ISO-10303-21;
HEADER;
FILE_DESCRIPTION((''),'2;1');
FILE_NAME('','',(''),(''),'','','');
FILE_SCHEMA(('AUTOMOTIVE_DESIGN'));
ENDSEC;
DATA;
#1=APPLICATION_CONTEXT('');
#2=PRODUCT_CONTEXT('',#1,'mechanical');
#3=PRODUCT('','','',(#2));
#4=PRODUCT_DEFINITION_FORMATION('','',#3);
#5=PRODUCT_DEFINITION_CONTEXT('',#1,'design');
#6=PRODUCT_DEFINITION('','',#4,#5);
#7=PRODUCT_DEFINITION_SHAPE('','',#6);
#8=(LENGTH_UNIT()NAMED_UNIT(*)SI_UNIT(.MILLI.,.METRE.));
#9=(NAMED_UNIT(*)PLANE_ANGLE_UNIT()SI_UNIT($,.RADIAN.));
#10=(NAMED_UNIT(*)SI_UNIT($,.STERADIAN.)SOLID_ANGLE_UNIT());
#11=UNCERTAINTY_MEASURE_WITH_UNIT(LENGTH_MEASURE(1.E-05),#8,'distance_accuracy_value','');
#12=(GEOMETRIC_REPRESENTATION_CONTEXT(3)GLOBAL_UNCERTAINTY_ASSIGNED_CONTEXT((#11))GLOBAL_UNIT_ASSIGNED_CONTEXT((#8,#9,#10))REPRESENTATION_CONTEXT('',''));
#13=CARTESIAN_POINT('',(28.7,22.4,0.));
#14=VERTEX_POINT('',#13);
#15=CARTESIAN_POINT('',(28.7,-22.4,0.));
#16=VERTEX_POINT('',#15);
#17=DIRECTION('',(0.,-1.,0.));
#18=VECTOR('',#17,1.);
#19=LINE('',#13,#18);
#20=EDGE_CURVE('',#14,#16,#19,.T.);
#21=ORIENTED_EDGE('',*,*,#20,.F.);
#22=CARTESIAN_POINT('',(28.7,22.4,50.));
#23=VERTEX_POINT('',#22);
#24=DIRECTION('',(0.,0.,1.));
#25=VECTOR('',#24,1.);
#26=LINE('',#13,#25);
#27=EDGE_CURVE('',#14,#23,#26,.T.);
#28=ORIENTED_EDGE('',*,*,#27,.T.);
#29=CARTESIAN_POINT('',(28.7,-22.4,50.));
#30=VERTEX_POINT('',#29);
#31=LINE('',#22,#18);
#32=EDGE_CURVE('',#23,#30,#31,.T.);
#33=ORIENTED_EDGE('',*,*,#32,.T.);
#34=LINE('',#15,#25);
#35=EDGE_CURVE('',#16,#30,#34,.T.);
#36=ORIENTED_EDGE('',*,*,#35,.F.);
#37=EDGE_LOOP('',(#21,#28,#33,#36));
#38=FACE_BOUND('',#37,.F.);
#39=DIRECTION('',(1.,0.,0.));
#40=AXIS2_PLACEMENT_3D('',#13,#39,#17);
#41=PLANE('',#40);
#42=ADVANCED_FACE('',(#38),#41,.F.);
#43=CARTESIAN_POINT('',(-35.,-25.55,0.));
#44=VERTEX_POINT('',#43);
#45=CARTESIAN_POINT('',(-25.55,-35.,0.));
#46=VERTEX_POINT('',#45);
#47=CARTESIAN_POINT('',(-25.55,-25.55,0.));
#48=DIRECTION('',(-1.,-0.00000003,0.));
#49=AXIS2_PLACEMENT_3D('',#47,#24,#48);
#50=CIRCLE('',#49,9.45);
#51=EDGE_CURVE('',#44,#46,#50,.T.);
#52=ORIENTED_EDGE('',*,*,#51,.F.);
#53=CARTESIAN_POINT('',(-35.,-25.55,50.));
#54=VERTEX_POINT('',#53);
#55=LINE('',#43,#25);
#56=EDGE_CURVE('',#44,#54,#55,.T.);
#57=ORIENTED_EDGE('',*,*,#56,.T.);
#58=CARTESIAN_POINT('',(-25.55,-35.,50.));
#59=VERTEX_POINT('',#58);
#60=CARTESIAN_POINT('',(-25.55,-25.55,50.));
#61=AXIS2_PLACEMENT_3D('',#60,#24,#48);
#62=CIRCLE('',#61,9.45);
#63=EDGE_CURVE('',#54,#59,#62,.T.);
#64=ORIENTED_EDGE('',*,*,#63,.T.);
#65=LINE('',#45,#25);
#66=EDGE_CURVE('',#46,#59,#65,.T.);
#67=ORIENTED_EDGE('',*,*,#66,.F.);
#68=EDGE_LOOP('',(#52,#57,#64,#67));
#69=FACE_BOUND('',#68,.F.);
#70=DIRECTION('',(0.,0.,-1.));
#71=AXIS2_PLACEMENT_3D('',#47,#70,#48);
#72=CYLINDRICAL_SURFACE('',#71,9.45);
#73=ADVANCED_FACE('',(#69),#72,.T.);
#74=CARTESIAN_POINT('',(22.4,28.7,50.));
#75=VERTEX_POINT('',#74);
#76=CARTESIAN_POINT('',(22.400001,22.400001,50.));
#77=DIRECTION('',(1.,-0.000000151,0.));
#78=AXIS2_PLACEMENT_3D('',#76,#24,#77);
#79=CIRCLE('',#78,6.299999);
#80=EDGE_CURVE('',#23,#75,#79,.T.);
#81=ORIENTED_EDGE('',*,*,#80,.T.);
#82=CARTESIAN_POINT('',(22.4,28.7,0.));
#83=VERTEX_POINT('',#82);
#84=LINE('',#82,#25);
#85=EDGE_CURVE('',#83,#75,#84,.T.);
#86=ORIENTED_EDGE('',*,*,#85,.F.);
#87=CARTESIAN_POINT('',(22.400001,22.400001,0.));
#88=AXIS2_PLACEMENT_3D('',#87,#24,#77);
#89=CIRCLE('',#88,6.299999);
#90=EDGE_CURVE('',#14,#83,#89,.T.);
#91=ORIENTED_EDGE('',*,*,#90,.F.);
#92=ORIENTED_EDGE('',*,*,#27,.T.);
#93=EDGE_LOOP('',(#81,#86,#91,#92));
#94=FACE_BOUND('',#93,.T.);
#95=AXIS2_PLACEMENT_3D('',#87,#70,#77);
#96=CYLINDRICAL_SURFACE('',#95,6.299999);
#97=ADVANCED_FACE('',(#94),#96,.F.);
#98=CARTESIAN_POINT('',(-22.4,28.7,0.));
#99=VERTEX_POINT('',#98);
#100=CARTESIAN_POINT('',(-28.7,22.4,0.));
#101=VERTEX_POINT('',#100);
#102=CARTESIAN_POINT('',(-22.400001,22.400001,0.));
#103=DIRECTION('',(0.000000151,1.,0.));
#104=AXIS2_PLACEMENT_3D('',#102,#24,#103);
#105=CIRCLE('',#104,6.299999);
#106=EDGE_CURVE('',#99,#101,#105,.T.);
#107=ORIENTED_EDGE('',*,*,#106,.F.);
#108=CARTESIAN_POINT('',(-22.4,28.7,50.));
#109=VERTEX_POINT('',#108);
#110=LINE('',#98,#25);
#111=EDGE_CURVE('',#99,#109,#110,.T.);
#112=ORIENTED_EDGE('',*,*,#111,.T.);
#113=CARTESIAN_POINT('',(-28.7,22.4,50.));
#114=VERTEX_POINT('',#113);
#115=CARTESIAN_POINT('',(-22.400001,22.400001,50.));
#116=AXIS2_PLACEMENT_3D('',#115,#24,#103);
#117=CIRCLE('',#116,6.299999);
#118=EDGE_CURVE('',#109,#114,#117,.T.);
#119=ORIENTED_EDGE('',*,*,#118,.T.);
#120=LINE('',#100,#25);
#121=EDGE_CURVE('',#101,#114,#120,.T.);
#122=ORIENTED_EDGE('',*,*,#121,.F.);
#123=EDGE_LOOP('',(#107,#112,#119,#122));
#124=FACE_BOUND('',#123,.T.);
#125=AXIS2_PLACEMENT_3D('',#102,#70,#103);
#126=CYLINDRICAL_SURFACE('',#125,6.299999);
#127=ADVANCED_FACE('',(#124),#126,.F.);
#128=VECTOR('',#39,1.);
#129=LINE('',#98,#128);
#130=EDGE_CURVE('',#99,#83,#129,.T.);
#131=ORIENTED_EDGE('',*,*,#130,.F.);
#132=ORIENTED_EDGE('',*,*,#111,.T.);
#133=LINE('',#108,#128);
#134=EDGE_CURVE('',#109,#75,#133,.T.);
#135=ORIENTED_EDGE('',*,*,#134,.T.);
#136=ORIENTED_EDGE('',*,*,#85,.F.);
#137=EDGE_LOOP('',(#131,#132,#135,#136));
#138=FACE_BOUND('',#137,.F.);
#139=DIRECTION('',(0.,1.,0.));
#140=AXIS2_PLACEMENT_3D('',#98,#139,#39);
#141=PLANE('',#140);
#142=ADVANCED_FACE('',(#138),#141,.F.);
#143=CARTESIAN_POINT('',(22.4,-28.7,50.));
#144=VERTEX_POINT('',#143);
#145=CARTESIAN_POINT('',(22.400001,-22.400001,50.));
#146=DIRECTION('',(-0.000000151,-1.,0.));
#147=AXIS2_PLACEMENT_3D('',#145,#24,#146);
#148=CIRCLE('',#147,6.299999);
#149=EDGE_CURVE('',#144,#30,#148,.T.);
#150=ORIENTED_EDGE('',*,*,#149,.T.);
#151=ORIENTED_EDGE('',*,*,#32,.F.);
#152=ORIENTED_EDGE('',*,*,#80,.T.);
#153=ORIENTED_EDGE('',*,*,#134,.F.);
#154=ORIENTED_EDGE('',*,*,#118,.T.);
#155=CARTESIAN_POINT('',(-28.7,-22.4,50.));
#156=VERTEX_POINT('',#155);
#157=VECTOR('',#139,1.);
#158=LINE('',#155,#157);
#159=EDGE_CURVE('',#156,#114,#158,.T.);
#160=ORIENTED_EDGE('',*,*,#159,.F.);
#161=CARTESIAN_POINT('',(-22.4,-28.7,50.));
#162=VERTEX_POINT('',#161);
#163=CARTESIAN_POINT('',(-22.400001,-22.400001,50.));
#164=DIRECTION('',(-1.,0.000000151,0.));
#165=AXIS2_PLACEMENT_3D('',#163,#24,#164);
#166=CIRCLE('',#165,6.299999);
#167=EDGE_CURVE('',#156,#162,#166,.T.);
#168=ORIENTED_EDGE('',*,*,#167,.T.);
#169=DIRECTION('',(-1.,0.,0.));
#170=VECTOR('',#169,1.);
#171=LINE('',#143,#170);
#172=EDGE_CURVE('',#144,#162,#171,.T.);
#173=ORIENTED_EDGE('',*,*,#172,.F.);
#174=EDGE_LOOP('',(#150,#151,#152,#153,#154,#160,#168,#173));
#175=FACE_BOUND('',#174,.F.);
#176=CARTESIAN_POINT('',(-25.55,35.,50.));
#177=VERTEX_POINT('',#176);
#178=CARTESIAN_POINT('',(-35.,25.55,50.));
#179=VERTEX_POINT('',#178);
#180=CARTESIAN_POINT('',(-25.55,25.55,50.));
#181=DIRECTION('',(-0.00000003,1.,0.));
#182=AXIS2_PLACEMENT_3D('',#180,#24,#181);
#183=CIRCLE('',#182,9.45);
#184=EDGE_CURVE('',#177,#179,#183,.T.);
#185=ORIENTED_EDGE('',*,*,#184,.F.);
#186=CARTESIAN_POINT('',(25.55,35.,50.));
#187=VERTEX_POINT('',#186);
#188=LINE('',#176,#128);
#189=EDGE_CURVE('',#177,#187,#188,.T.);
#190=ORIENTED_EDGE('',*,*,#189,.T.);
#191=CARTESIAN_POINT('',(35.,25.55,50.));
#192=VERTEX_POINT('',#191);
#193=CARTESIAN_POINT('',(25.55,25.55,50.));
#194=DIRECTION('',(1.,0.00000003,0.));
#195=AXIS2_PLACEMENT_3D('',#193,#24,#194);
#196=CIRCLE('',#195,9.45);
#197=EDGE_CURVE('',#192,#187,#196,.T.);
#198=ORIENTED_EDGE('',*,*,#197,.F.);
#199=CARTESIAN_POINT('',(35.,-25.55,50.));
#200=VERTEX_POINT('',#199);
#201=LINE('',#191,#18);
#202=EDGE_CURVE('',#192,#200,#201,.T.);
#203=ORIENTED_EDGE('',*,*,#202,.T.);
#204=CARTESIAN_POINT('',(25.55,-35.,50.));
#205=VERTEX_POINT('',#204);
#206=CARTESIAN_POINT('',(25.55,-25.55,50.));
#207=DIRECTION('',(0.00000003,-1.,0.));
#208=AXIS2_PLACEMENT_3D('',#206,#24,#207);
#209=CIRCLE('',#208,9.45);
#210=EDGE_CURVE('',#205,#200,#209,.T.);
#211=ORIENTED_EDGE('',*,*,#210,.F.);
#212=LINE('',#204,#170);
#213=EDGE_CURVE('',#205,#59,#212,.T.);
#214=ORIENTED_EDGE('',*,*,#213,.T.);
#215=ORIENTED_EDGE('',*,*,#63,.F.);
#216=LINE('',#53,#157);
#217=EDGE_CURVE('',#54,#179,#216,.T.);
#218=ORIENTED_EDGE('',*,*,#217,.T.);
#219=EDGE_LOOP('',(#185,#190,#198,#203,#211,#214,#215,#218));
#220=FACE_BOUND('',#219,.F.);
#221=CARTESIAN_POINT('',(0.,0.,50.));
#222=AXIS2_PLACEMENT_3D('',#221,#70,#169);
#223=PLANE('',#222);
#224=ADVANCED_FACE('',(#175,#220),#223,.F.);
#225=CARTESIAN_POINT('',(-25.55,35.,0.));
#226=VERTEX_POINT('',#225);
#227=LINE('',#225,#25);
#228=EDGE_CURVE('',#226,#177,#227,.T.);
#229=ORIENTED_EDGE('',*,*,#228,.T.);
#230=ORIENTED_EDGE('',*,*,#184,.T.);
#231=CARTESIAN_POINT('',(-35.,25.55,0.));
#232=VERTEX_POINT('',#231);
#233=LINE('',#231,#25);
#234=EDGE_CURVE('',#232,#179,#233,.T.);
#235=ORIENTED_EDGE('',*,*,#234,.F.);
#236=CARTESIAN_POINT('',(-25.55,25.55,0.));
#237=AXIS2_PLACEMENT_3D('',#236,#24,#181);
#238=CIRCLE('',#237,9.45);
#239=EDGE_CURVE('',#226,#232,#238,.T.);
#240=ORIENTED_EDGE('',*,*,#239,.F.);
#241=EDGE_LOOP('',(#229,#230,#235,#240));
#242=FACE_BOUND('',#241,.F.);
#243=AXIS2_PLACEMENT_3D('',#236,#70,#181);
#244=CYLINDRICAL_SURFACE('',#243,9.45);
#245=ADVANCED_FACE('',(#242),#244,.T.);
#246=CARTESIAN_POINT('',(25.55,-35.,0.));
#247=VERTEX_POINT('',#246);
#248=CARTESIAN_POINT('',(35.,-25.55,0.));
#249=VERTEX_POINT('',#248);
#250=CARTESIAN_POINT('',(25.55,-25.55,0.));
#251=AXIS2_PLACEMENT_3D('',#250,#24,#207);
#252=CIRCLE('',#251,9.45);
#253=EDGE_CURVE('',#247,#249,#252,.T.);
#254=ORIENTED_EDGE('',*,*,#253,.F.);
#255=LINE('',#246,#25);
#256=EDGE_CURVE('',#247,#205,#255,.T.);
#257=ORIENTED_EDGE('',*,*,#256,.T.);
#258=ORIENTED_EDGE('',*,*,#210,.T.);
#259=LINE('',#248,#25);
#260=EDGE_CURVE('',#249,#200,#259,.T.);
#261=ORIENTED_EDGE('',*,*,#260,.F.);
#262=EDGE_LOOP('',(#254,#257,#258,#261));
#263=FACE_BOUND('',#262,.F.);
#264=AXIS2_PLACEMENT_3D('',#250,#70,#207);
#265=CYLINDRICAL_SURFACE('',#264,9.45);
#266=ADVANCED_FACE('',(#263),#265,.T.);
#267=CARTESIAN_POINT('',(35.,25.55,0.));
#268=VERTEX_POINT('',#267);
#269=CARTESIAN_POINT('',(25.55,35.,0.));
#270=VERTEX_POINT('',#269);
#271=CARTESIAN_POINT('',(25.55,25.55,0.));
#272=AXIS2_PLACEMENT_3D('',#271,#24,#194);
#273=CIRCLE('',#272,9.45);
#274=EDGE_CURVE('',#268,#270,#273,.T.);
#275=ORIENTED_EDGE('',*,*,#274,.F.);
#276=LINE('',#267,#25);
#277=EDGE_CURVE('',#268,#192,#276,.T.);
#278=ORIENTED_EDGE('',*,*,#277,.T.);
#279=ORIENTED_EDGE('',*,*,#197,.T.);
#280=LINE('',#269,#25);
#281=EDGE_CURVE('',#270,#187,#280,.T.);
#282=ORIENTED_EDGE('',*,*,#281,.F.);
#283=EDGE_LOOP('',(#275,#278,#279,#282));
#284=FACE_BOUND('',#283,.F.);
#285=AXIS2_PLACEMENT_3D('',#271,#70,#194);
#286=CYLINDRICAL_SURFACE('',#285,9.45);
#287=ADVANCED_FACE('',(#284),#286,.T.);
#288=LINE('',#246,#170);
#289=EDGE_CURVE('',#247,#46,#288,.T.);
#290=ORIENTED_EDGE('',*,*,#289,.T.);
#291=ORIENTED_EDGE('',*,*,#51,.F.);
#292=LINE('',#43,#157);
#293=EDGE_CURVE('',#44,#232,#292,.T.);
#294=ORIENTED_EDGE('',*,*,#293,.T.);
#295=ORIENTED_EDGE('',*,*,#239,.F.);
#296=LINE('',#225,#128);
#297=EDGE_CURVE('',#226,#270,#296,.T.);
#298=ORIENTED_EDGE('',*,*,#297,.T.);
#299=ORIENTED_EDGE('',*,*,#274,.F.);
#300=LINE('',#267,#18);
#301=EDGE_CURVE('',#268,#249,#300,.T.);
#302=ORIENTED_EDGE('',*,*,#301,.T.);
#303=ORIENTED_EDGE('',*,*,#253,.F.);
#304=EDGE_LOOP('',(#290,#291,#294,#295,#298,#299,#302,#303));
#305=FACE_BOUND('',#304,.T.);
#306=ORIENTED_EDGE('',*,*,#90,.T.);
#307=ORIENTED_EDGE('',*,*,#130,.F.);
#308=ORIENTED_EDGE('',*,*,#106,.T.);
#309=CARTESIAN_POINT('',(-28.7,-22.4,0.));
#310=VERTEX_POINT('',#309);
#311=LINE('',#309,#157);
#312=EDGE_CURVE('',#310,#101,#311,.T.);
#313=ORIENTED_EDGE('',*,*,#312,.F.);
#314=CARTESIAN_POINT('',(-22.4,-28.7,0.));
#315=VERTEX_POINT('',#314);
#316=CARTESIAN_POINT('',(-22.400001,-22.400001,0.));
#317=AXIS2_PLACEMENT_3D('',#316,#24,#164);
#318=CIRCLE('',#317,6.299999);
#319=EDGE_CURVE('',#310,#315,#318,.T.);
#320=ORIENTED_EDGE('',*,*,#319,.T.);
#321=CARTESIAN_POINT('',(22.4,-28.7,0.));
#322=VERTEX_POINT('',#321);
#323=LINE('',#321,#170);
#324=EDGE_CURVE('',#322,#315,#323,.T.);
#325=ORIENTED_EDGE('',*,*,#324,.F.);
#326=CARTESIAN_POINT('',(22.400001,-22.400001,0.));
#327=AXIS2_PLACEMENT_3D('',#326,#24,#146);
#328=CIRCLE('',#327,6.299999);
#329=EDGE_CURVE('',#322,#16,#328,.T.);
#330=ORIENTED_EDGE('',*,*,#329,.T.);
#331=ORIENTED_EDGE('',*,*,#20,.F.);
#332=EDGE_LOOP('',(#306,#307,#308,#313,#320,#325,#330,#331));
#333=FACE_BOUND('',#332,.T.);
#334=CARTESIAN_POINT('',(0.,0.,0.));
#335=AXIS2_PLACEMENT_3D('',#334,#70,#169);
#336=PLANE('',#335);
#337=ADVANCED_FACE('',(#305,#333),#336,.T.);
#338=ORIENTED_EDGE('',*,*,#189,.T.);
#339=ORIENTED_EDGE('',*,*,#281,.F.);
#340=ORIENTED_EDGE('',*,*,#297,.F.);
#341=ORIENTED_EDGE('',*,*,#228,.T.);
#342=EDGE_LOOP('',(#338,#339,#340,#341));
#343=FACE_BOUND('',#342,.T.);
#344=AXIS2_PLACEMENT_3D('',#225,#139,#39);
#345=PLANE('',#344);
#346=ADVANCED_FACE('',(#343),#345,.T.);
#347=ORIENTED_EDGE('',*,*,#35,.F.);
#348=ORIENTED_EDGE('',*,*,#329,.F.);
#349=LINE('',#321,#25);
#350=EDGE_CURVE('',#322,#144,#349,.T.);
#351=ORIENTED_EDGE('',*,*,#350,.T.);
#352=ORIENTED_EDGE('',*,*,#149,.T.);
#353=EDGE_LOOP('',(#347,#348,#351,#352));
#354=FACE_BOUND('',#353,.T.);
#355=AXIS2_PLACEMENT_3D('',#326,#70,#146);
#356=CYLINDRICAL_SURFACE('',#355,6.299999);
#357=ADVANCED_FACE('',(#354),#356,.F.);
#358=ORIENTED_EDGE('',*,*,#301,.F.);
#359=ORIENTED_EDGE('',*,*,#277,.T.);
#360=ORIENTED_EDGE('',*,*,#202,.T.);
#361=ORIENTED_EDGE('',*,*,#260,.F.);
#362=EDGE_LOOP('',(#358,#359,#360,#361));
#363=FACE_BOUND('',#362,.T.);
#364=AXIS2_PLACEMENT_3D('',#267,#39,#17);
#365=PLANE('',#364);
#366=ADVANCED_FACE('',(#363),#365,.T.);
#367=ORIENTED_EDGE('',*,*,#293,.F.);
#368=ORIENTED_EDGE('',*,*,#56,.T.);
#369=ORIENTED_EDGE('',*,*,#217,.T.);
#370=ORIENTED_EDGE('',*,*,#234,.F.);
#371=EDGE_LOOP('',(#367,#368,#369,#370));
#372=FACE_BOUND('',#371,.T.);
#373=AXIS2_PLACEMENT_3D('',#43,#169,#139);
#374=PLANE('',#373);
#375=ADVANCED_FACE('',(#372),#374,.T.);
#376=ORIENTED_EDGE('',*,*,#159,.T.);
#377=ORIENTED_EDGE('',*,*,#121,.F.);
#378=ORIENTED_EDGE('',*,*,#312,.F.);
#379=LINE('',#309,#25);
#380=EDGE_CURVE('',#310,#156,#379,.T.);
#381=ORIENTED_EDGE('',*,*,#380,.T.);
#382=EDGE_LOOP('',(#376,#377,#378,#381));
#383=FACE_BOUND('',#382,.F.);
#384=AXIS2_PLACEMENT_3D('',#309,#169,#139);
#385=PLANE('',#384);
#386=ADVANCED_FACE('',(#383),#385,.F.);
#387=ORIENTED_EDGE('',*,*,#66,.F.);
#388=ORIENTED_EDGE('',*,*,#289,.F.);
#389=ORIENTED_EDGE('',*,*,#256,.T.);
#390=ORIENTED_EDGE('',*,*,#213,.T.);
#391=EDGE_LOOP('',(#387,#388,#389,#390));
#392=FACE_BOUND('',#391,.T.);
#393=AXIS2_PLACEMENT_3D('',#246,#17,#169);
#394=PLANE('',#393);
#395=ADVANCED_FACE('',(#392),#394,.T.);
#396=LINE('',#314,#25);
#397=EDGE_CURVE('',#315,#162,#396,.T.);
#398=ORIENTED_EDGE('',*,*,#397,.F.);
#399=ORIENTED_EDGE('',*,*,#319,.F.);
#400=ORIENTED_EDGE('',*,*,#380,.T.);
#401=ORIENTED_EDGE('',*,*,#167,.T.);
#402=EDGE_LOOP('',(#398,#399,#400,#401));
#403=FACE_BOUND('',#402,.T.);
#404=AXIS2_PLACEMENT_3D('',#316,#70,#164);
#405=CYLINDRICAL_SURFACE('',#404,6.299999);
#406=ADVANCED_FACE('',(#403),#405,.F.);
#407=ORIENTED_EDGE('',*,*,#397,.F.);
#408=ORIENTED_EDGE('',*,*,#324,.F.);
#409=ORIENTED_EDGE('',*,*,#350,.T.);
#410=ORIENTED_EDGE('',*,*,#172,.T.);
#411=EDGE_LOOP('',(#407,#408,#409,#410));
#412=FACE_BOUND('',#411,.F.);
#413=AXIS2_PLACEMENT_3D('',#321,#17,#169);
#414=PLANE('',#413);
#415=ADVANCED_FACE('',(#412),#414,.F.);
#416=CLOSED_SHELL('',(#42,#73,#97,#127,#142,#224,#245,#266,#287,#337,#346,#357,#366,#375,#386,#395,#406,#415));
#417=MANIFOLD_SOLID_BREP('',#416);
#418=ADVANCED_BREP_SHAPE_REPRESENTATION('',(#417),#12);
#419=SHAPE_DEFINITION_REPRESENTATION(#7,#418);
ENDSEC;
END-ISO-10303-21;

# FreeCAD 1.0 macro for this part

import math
import FreeCAD as App
import Part
import Sketcher
Q = App.Units.Quantity

doc = App.newDocument("Part")
body = doc.addObject("PartDesign::Body", "Body")

sketch1 = body.newObject("Sketcher::SketchObject", "Sketch")
sketch1.AttachmentSupport = (doc.getObject("XY_Plane"), [""])
sketch1.MapMode = "FlatFace"
sketch1.addGeometry([
    Part.LineSegment(App.Vector(26, 35, 0), App.Vector(-26, 35, 0)),
    Part.ArcOfCircle(Part.Circle(App.Vector(-26, 26, 0), App.Vector(0, 0, 1), 9), math.radians(90), math.radians(180)),
    Part.LineSegment(App.Vector(-35, 26, 0), App.Vector(-35, -26, 0)),
    Part.ArcOfCircle(Part.Circle(App.Vector(-26, -26, 0), App.Vector(0, 0, 1), 9), math.radians(-180), math.radians(-90)),
    Part.LineSegment(App.Vector(-26, -35, 0), App.Vector(26, -35, 0)),
    Part.ArcOfCircle(Part.Circle(App.Vector(26, -26, 0), App.Vector(0, 0, 1), 9), math.radians(-90), math.radians(0)),
    Part.LineSegment(App.Vector(35, -26, 0), App.Vector(35, 26, 0)),
    Part.ArcOfCircle(Part.Circle(App.Vector(26, 26, 0), App.Vector(0, 0, 1), 9), math.radians(0), math.radians(90)),
    Part.LineSegment(App.Vector(-22, 29, 0), App.Vector(22, 29, 0)),
    Part.ArcOfCircle(Part.Circle(App.Vector(22, 22, 0), App.Vector(0, 0, 1), 6), math.radians(0), math.radians(90)),
    Part.LineSegment(App.Vector(29, 22, 0), App.Vector(29, -22, 0)),
    Part.ArcOfCircle(Part.Circle(App.Vector(22, -22, 0), App.Vector(0, 0, 1), 6), math.radians(-90), math.radians(0)),
    Part.LineSegment(App.Vector(22, -29, 0), App.Vector(-22, -29, 0)),
    Part.ArcOfCircle(Part.Circle(App.Vector(-22, -22, 0), App.Vector(0, 0, 1), 6), math.radians(180), math.radians(270)),
    Part.LineSegment(App.Vector(-29, -22, 0), App.Vector(-29, 22, 0)),
    Part.ArcOfCircle(Part.Circle(App.Vector(-22, 22, 0), App.Vector(0, 0, 1), 6), math.radians(90), math.radians(180)),
], False)
sketch1.addConstraint([
    Sketcher.Constraint("Tangent", 0, 2, 1, 1),
    Sketcher.Constraint("Tangent", 1, 2, 2, 1),
    Sketcher.Constraint("Tangent", 2, 2, 3, 1),
    Sketcher.Constraint("Tangent", 3, 2, 4, 1),
    Sketcher.Constraint("Tangent", 4, 2, 5, 1),
    Sketcher.Constraint("Tangent", 5, 2, 6, 1),
    Sketcher.Constraint("Tangent", 6, 2, 7, 1),
    Sketcher.Constraint("Tangent", 7, 2, 0, 1),
    Sketcher.Constraint("Tangent", 8, 2, 9, 2),
    Sketcher.Constraint("Tangent", 9, 1, 10, 1),
    Sketcher.Constraint("Tangent", 10, 2, 11, 2),
    Sketcher.Constraint("Tangent", 11, 1, 12, 1),
    Sketcher.Constraint("Tangent", 12, 2, 13, 2),
    Sketcher.Constraint("Tangent", 13, 1, 14, 1),
    Sketcher.Constraint("Tangent", 14, 2, 15, 2),
    Sketcher.Constraint("Tangent", 15, 1, 8, 1),
    Sketcher.Constraint("Horizontal", 0),
    Sketcher.Constraint("Vertical", 2),
    Sketcher.Constraint("Horizontal", 4),
    Sketcher.Constraint("Vertical", 6),
    Sketcher.Constraint("Horizontal", 8),
    Sketcher.Constraint("Vertical", 10),
    Sketcher.Constraint("Horizontal", 12),
    Sketcher.Constraint("Vertical", 14),
    Sketcher.Constraint("Equal", 1, 3),
    Sketcher.Constraint("Equal", 3, 5),
    Sketcher.Constraint("Equal", 5, 7),
    Sketcher.Constraint("Equal", 9, 11),
    Sketcher.Constraint("Equal", 11, 13),
    Sketcher.Constraint("Equal", 13, 15),
    Sketcher.Constraint("Symmetric", 1, 3, 5, 3, -1, 1),
    Sketcher.Constraint("Symmetric", 9, 3, 13, 3, -1, 1),
    Sketcher.Constraint("Equal", 4, 2),
    Sketcher.Constraint("Equal", 12, 10),
    Sketcher.Constraint("Radius", 9, Q("6.299999 mm")),
    Sketcher.Constraint("Radius", 1, Q("9.45 mm")),
    Sketcher.Constraint("DistanceX", 0, 2, 0, 1, Q("51.1 mm")),
    Sketcher.Constraint("DistanceX", 8, 1, 8, 2, Q("44.8 mm")),
])
pad1 = body.newObject("PartDesign::Pad", "Pad")
pad1.Profile = sketch1
pad1.Length = 50

doc.recompute()
